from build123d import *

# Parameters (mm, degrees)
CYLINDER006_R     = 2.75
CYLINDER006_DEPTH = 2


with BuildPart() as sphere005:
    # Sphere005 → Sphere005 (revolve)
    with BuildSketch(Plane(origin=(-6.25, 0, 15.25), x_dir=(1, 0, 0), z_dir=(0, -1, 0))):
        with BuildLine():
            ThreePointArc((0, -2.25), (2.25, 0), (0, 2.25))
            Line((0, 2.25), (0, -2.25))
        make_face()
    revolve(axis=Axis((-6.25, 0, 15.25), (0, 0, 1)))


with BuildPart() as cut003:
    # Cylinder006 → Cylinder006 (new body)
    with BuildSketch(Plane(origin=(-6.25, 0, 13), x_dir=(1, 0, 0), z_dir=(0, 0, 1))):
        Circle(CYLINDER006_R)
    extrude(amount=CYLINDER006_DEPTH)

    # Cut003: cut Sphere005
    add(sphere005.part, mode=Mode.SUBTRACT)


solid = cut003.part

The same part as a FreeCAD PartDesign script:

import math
import FreeCAD as App
import Part
import Sketcher

V = App.Vector

doc = App.newDocument("Part")
params = doc.addObject("Spreadsheet::Sheet", "Params")
for row, (alias, value) in enumerate([
    ("sketch1_radius", "2.25 mm"),
    ("revolution_angle", "360 deg"),
    ("sketch2_diameter", "5.5 mm"),
    ("pad1_length", "2 mm"),
], start=1):
    params.set(f"A{row}", alias)
    params.set(f"B{row}", "=" + value)
    params.setAlias(f"B{row}", alias)

body = doc.addObject("PartDesign::Body", "Body")

sketch1 = body.newObject("Sketcher::SketchObject", "Sketch")
sketch1.AttachmentSupport = (doc.getObject("XZ_Plane"), [""])
sketch1.MapMode = "FlatFace"
sketch1.addGeometry([
    Part.ArcOfCircle(Part.Circle(V(-6.25, 15.25, 0), V(0, 0, 1), 2.25), math.radians(-90), math.radians(90)),
    Part.LineSegment(V(-6.25, 17.5, 0), V(-6.25, 13, 0)),
], False)
sketch1.addGeometry(Part.LineSegment(V(-6.25, 13, 0), V(-6.25, 17.5, 0)), True)
sketch1.addConstraint([
    Sketcher.Constraint("Coincident", 0, 1, 1, 2),
    Sketcher.Constraint("Coincident", 1, 1, 0, 2),
    Sketcher.Constraint("Vertical", 1),
    Sketcher.Constraint("Vertical", 2),
    Sketcher.Constraint("Coincident", 2, 1, 0, 1),
    Sketcher.Constraint("Equal", 1, 2),
    Sketcher.Constraint("Radius", 0, 2.25),
    Sketcher.Constraint("DistanceY", -1, 1, 0, 1, 13.0),
    Sketcher.Constraint("DistanceX", 0, 3, -1, 1, 6.25),
    Sketcher.Constraint("DistanceX", 0, 1, -1, 1, 6.25),
])
sketch1.setExpression("Constraints[6]", "Params.sketch1_radius")
revolution = body.newObject("PartDesign::Revolution", "Revolution")
revolution.Profile = sketch1
revolution.ReferenceAxis = (sketch1, ["Axis0"])
revolution.setExpression("Angle", "Params.revolution_angle")
body2 = doc.addObject("PartDesign::Body", "Body001")

sketch2 = body2.newObject("Sketcher::SketchObject", "Sketch001")
sketch2.AttachmentSupport = (doc.getObject("XY_Plane001"), [""])
sketch2.MapMode = "FlatFace"
sketch2.AttachmentOffset = App.Placement(V(0, 0, 13), App.Rotation())
sketch2.addGeometry(Part.Circle(V(-6.25, 0, 0), V(0, 0, 1), 2.75), False)
sketch2.addConstraint([
    Sketcher.Constraint("PointOnObject", 0, 3, -1),
    Sketcher.Constraint("Diameter", 0, 5.5),
    Sketcher.Constraint("DistanceX", 0, 3, -1, 1, 6.25),
])
sketch2.setExpression("Constraints[1]", "Params.sketch2_diameter")
pad1 = body2.newObject("PartDesign::Pad", "Pad")
pad1.Profile = sketch2
pad1.setExpression("Length", "Params.pad1_length")
doc.recompute()

boolean = body2.newObject("PartDesign::Boolean", "Boolean")
boolean.Type = "Cut"
boolean.addObjects([body])

doc.recompute()
